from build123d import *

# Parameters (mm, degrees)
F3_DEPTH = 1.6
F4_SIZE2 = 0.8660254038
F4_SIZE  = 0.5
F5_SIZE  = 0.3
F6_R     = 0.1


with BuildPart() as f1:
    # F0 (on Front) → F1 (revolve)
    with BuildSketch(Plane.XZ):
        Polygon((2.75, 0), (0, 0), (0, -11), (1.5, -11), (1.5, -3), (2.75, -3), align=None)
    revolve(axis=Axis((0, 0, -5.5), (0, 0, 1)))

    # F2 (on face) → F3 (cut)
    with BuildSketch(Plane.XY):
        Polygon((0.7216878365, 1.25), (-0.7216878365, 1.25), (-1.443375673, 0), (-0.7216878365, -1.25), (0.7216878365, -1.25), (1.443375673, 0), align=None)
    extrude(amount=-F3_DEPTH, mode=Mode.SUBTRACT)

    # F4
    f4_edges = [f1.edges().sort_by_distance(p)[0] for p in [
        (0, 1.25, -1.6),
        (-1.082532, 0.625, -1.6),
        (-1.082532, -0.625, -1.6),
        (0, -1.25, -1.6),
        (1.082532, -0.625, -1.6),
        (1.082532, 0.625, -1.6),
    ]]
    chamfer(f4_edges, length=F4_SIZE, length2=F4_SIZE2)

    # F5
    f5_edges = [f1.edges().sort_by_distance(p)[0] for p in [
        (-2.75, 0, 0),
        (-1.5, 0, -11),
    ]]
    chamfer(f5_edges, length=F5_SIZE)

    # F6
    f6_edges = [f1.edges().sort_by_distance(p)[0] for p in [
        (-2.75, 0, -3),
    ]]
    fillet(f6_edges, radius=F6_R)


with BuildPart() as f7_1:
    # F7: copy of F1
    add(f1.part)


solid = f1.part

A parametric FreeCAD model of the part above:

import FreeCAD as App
import Part
import Sketcher

V = App.Vector
Q = App.Units.Quantity


def edges_at(feature, points):
    """Names of the edges that pass closest to the given points."""
    edges = feature.Shape.Edges
    near = lambda p: min(range(len(edges)), key=lambda i: edges[i].distToShape(Part.Vertex(*p))[0])
    return sorted({f"Edge{near(p) + 1}" for p in points})


def add_polygon(sketch, points):
    """Adds a closed chain of lines whose ends are joined by coincident constraints."""
    first, n = sketch.GeometryCount, len(points)
    for a, b in zip(points, points[1:] + points[:1]):
        sketch.addGeometry(Part.LineSegment(App.Vector(*a, 0), App.Vector(*b, 0)), False)
    for i in range(n):
        sketch.addConstraint(Sketcher.Constraint("Coincident", first + i, 2, first + (i + 1) % n, 1))

doc = App.newDocument("Part")
params = doc.addObject("Spreadsheet::Sheet", "Params")
for row, (alias, value) in enumerate([
    ("sketch1_height", "11 mm"),
    ("sketch1_height2", "8 mm"),
    ("sketch1_width", "1.5 mm"),
    ("sketch1_width2", "2.75 mm"),
    ("revolution_angle", "360 deg"),
    ("pocket1_length", "1.6 mm"),
    ("chamfer_size", "0.5 mm"),
    ("chamfer_size2", "0.866025 mm"),
    ("chamfer2_size", "0.3 mm"),
    ("fillet_radius", "0.1 mm"),
], start=1):
    params.set(f"A{row}", alias)
    params.set(f"B{row}", "=" + value)
    params.setAlias(f"B{row}", alias)

body = doc.addObject("PartDesign::Body", "Body")

sketch1 = body.newObject("Sketcher::SketchObject", "Sketch")
sketch1.AttachmentSupport = (doc.getObject("XZ_Plane"), [""])
sketch1.MapMode = "FlatFace"
add_polygon(sketch1, [(2.75, 0), (0, 0), (0, -11), (1.5, -11), (1.5, -3), (2.75, -3)])
sketch1.addConstraint([
    Sketcher.Constraint("Horizontal", 0),
    Sketcher.Constraint("Vertical", 1),
    Sketcher.Constraint("Horizontal", 2),
    Sketcher.Constraint("Vertical", 3),
    Sketcher.Constraint("Horizontal", 4),
    Sketcher.Constraint("Vertical", 5),
    Sketcher.Constraint("Coincident", 0, 2, -1, 1),
    Sketcher.Constraint("DistanceY", 1, 2, 1, 1, Q("11 mm")),
    Sketcher.Constraint("DistanceY", 3, 1, 3, 2, Q("8 mm")),
    Sketcher.Constraint("DistanceX", 2, 1, 2, 2, Q("1.5 mm")),
    Sketcher.Constraint("DistanceX", 0, 2, 0, 1, Q("2.75 mm")),
])
sketch1.setExpression("Constraints[13]", "Params.sketch1_height")
sketch1.setExpression("Constraints[14]", "Params.sketch1_height2")
sketch1.setExpression("Constraints[15]", "Params.sketch1_width")
sketch1.setExpression("Constraints[16]", "Params.sketch1_width2")
revolution = body.newObject("PartDesign::Revolution", "Revolution")
revolution.Profile = sketch1
revolution.ReferenceAxis = (sketch1, ["V_Axis"])
revolution.setExpression("Angle", "Params.revolution_angle")

sketch2 = body.newObject("Sketcher::SketchObject", "Sketch001")
sketch2.AttachmentSupport = (doc.getObject("XY_Plane"), [""])
sketch2.MapMode = "FlatFace"
add_polygon(sketch2, [(0.721688, 1.25), (-0.721688, 1.25), (-1.443376, 0), (-0.721688, -1.25), (0.721688, -1.25), (1.443376, 0)])
sketch2.addConstraint([
    Sketcher.Constraint("Horizontal", 0),
    Sketcher.Constraint("Horizontal", 3),
    Sketcher.Constraint("Symmetric", 0, 2, 3, 2, -1, 1),
    Sketcher.Constraint("Symmetric", 1, 2, 4, 2, -1, 1),
    Sketcher.Constraint("PointOnObject", 1, 2, -1),
    Sketcher.Constraint("Parallel", 2, 5),
    Sketcher.Constraint("Vertical", 0, 2, 2, 2),
    Sketcher.Constraint("Angle", 1, Q("-120 deg")),
    Sketcher.Constraint("DistanceY", 2, 2, 0, 2, Q("2.5 mm")),
    Sketcher.Constraint("DistanceX", 0, 2, 0, 1, Q("1.443376 mm")),
])
pocket1 = body.newObject("PartDesign::Pocket", "Pocket")
pocket1.Profile = sketch2
pocket1.setExpression("Length", "Params.pocket1_length")
doc.recompute()

chamfer = body.newObject("PartDesign::Chamfer", "Chamfer")
chamfer.Base = (pocket1, edges_at(pocket1, [
    (0, 1.25, -1.6),
    (-1.083, 0.625, -1.6),
    (-1.083, -0.625, -1.6),
    (0, -1.25, -1.6),
    (1.083, -0.625, -1.6),
    (1.083, 0.625, -1.6),
]))
chamfer.ChamferType = "Two distances"
chamfer.setExpression("Size", "Params.chamfer_size")
chamfer.setExpression("Size2", "Params.chamfer_size2")
doc.recompute()

chamfer2 = body.newObject("PartDesign::Chamfer", "Chamfer001")
chamfer2.Base = (chamfer, edges_at(chamfer, [(-2.75, 0, 0), (-1.5, 0, -11)]))
chamfer2.setExpression("Size", "Params.chamfer2_size")
doc.recompute()

fillet = body.newObject("PartDesign::Fillet", "Fillet")
fillet.Base = (chamfer2, edges_at(chamfer2, [(-2.75, 0, -3)]))
fillet.setExpression("Radius", "Params.fillet_radius")
body2 = doc.addObject("PartDesign::Body", "Body001")
doc.recompute()

body2.BaseFeature = body
doc.recompute()
body.Visibility = False

doc.recompute()
